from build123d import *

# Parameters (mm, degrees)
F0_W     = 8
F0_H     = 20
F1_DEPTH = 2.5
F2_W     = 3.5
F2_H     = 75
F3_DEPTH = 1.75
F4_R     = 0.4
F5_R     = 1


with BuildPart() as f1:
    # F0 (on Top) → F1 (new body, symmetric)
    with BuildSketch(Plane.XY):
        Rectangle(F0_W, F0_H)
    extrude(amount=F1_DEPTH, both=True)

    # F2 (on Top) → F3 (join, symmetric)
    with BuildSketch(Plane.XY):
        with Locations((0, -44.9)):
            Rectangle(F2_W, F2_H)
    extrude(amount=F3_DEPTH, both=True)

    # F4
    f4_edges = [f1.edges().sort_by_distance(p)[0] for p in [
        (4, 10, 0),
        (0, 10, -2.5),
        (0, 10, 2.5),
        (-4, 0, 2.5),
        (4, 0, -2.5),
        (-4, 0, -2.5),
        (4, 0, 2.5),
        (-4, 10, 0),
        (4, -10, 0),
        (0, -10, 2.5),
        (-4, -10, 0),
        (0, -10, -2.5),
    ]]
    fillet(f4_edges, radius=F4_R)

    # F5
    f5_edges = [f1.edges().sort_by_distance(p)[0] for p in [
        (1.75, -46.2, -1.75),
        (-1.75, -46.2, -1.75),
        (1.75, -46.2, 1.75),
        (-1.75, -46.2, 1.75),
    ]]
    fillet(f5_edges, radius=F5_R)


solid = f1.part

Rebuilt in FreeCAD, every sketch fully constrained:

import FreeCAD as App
import Part
import Sketcher
from FreeCAD import Vector


def edges_at(feature, points):
    """Names of the edges that pass closest to the given points."""
    edges = feature.Shape.Edges
    near = lambda p: min(range(len(edges)), key=lambda i: edges[i].distToShape(Part.Vertex(*p))[0])
    return sorted({f"Edge{near(p) + 1}" for p in points})


def add_polygon(sketch, points):
    """Adds a closed chain of lines whose ends are joined by coincident constraints."""
    first, n = sketch.GeometryCount, len(points)
    for a, b in zip(points, points[1:] + points[:1]):
        sketch.addGeometry(Part.LineSegment(App.Vector(*a, 0), App.Vector(*b, 0)), False)
    for i in range(n):
        sketch.addConstraint(Sketcher.Constraint("Coincident", first + i, 2, first + (i + 1) % n, 1))

doc = App.newDocument("Part")
body = doc.addObject("PartDesign::Body", "Body")

# Sketch on XY plane
sketch1 = body.newObject("Sketcher::SketchObject", "Sketch")
sketch1.AttachmentSupport = (doc.getObject("XY_Plane"), [""])
sketch1.MapMode = "FlatFace"
add_polygon(sketch1, [(-4, 10), (-4, -10), (4, -10), (4, 10)])  # lines 0-3
sketch1.addConstraint([
    Sketcher.Constraint("Vertical", 0),
    Sketcher.Constraint("Horizontal", 1),
    Sketcher.Constraint("Vertical", 2),
    Sketcher.Constraint("Horizontal", 3),
    Sketcher.Constraint("Symmetric", 0, 2, 2, 2, -1, 1),
    Sketcher.Constraint("DistanceX", 1, 1, 1, 2, 8.0),
    Sketcher.Constraint("DistanceY", 0, 2, 0, 1, 20.0),
])
pad1 = body.newObject("PartDesign::Pad", "Pad")
pad1.Profile = sketch1
pad1.Length = 5
pad1.Midplane = True

# Sketch on XY plane
sketch2 = body.newObject("Sketcher::SketchObject", "Sketch001")
sketch2.AttachmentSupport = (doc.getObject("XY_Plane"), [""])
sketch2.MapMode = "FlatFace"
add_polygon(sketch2, [(-1.8, -7.4), (-1.8, -82.4), (1.8, -82.4), (1.8, -7.4)])  # lines 0-3
sketch2.addConstraint([
    Sketcher.Constraint("Vertical", 0),
    Sketcher.Constraint("Horizontal", 1),
    Sketcher.Constraint("Vertical", 2),
    Sketcher.Constraint("Horizontal", 3),
    Sketcher.Constraint("DistanceY", 0, 2, 0, 1, 75.0),
    Sketcher.Constraint("DistanceX", 1, 1, 1, 2, 3.5),
    Sketcher.Constraint("DistanceY", 0, 2, -1, 1, 82.4),
    Sketcher.Constraint("DistanceX", 0, 2, -1, 1, 1.75),
])
pad2 = body.newObject("PartDesign::Pad", "Pad001")
pad2.Profile = sketch2
pad2.Length = 3.5
pad2.Midplane = True
doc.recompute()

fillet = body.newObject("PartDesign::Fillet", "Fillet")
fillet.Base = (pad2, edges_at(pad2, [
    (4, 10, 0),
    (0, 10, -2.5),
    (0, 10, 2.5),
    (-4, 0, 2.5),
    (4, 0, -2.5),
    (-4, 0, -2.5),
    (4, 0, 2.5),
    (-4, 10, 0),
    (4, -10, 0),
    (0, -10, 2.5),
    (-4, -10, 0),
    (0, -10, -2.5),
]))
fillet.Radius = 0.4
doc.recompute()

fillet2 = body.newObject("PartDesign::Fillet", "Fillet001")
fillet2.Base = (fillet, edges_at(fillet, [
    (1.75, -46.2, -1.75),
    (-1.75, -46.2, -1.75),
    (1.75, -46.2, 1.75),
    (-1.75, -46.2, 1.75),
]))
fillet2.Radius = 1

doc.recompute()
